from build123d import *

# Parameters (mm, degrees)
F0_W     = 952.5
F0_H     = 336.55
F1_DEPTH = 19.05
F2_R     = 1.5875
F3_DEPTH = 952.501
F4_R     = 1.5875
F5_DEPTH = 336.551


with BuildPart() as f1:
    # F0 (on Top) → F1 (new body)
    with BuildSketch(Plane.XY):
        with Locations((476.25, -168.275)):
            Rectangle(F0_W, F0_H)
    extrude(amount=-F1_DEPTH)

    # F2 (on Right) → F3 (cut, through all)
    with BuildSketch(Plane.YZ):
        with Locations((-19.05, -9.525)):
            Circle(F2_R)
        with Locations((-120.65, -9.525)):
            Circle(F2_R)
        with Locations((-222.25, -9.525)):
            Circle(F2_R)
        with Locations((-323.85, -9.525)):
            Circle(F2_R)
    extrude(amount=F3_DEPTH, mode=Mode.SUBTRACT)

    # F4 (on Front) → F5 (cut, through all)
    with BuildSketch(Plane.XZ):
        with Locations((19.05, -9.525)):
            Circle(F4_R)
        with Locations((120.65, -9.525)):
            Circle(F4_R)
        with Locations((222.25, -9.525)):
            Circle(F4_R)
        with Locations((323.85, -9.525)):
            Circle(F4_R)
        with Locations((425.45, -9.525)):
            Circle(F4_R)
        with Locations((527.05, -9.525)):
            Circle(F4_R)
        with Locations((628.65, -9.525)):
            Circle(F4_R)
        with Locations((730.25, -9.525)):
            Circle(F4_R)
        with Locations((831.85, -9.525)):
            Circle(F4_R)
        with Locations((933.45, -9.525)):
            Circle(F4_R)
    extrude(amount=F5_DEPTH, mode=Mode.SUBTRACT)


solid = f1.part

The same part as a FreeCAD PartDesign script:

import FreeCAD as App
import Part
import Sketcher
from FreeCAD import Vector
Q = App.Units.Quantity

doc = App.newDocument("Part")
body = doc.addObject("PartDesign::Body", "Body")

# Sketch on XY plane
sketch1 = doc.addObject("Sketcher::SketchObject", "Sketch")
body.addObject(sketch1)
sketch1.AttachmentSupport = (doc.XY_Plane, [""])
sketch1.MapMode = "FlatFace"
sketch1.addGeometry([
    Part.LineSegment(Vector(0, 0, 0), Vector(0, -337, 0)),
    Part.LineSegment(Vector(0, -337, 0), Vector(952, -337, 0)),
    Part.LineSegment(Vector(952, -337, 0), Vector(952, 0, 0)),
    Part.LineSegment(Vector(952, 0, 0), Vector(0, 0, 0)),
], False)
sketch1.addConstraint([
    Sketcher.Constraint("Coincident", 0, 2, 1, 1),
    Sketcher.Constraint("Coincident", 1, 2, 2, 1),
    Sketcher.Constraint("Coincident", 2, 2, 3, 1),
    Sketcher.Constraint("Coincident", 3, 2, 0, 1),
    Sketcher.Constraint("Vertical", 0),
    Sketcher.Constraint("Horizontal", 1),
    Sketcher.Constraint("Vertical", 2),
    Sketcher.Constraint("Horizontal", 3),
    Sketcher.Constraint("Coincident", 3, 2, -1, 1),
    Sketcher.Constraint("DistanceX", 1, 1, 1, 2, Q("37.5 in")),
    Sketcher.Constraint("DistanceY", 0, 2, 0, 1, Q("13.25 in")),
])
pad1 = doc.addObject("PartDesign::Pad", "Pad")
body.addObject(pad1)
pad1.Profile = sketch1
pad1.Length = Q("0.75 in")
pad1.Reversed = True

# Sketch on YZ plane
sketch2 = doc.addObject("Sketcher::SketchObject", "Sketch001")
body.addObject(sketch2)
sketch2.AttachmentSupport = (doc.YZ_Plane, [""])
sketch2.MapMode = "FlatFace"
sketch2.addGeometry([
    Part.Circle(Vector(-19.1, -9.5, 0), Vector(0, 0, 1), 1.6),
    Part.Circle(Vector(-120.7, -9.5, 0), Vector(0, 0, 1), 1.6),
    Part.Circle(Vector(-222.2, -9.5, 0), Vector(0, 0, 1), 1.6),
    Part.Circle(Vector(-323.9, -9.5, 0), Vector(0, 0, 1), 1.6),
], False)
sketch2.addConstraint([
    Sketcher.Constraint("Equal", 0, 1),
    Sketcher.Constraint("Equal", 1, 2),
    Sketcher.Constraint("Equal", 2, 3),
    Sketcher.Constraint("Horizontal", 0, 3, 1, 3),
    Sketcher.Constraint("Horizontal", 1, 3, 2, 3),
    Sketcher.Constraint("Horizontal", 2, 3, 3, 3),
    Sketcher.Constraint("Diameter", 0, Q("0.125 in")),
    Sketcher.Constraint("DistanceX", 1, 3, 0, 3, Q("4 in")),
    Sketcher.Constraint("DistanceX", 2, 3, 1, 3, Q("4 in")),
    Sketcher.Constraint("DistanceX", 3, 3, 2, 3, Q("4 in")),
    Sketcher.Constraint("DistanceX", 0, 3, -1, 1, Q("0.75 in")),
    Sketcher.Constraint("DistanceY", 0, 3, -1, 1, Q("0.375 in")),
])
pocket1 = doc.addObject("PartDesign::Pocket", "Pocket")
body.addObject(pocket1)
pocket1.Profile = sketch2
pocket1.Type = "ThroughAll"
pocket1.Reversed = True

# Sketch on XZ plane
sketch3 = doc.addObject("Sketcher::SketchObject", "Sketch002")
body.addObject(sketch3)
sketch3.AttachmentSupport = (doc.XZ_Plane, [""])
sketch3.MapMode = "FlatFace"
sketch3.addGeometry([
    Part.Circle(Vector(19.1, -9.5, 0), Vector(0, 0, 1), 1.6),  # 0
    Part.Circle(Vector(120.7, -9.5, 0), Vector(0, 0, 1), 1.6),  # 1
    Part.Circle(Vector(222.2, -9.5, 0), Vector(0, 0, 1), 1.6),  # 2
    Part.Circle(Vector(323.9, -9.5, 0), Vector(0, 0, 1), 1.6),  # 3
    Part.Circle(Vector(425.4, -9.5, 0), Vector(0, 0, 1), 1.6),  # 4
    Part.Circle(Vector(527, -9.5, 0), Vector(0, 0, 1), 1.6),  # 5
    Part.Circle(Vector(628.6, -9.5, 0), Vector(0, 0, 1), 1.6),  # 6
    Part.Circle(Vector(730.2, -9.5, 0), Vector(0, 0, 1), 1.6),  # 7
    Part.Circle(Vector(831.9, -9.5, 0), Vector(0, 0, 1), 1.6),  # 8
    Part.Circle(Vector(933.5, -9.5, 0), Vector(0, 0, 1), 1.6),  # 9
], False)
sketch3.addConstraint([
    Sketcher.Constraint("Equal", 0, 1),
    Sketcher.Constraint("Equal", 1, 2),
    Sketcher.Constraint("Equal", 2, 3),
    Sketcher.Constraint("Equal", 3, 4),
    Sketcher.Constraint("Equal", 4, 5),
    Sketcher.Constraint("Equal", 5, 6),
    Sketcher.Constraint("Equal", 6, 7),
    Sketcher.Constraint("Equal", 7, 8),
    Sketcher.Constraint("Equal", 8, 9),
    Sketcher.Constraint("Horizontal", 0, 3, 1, 3),
    Sketcher.Constraint("Horizontal", 1, 3, 2, 3),
    Sketcher.Constraint("Horizontal", 2, 3, 3, 3),
    Sketcher.Constraint("Horizontal", 3, 3, 4, 3),
    Sketcher.Constraint("Horizontal", 4, 3, 5, 3),
    Sketcher.Constraint("Horizontal", 5, 3, 6, 3),
    Sketcher.Constraint("Horizontal", 6, 3, 7, 3),
    Sketcher.Constraint("Horizontal", 7, 3, 8, 3),
    Sketcher.Constraint("Horizontal", 8, 3, 9, 3),
    Sketcher.Constraint("Diameter", 0, Q("0.125 in")),
    Sketcher.Constraint("DistanceX", 0, 3, 1, 3, Q("4 in")),
    Sketcher.Constraint("DistanceX", 1, 3, 2, 3, Q("4 in")),
    Sketcher.Constraint("DistanceX", 2, 3, 3, 3, Q("4 in")),
    Sketcher.Constraint("DistanceX", 3, 3, 4, 3, Q("4 in")),
    Sketcher.Constraint("DistanceX", 4, 3, 5, 3, Q("4 in")),
    Sketcher.Constraint("DistanceX", 5, 3, 6, 3, Q("4 in")),
    Sketcher.Constraint("DistanceX", 6, 3, 7, 3, Q("4 in")),
    Sketcher.Constraint("DistanceX", 7, 3, 8, 3, Q("4 in")),
    Sketcher.Constraint("DistanceX", 8, 3, 9, 3, Q("4 in")),
    Sketcher.Constraint("DistanceX", -1, 1, 0, 3, Q("0.75 in")),
    Sketcher.Constraint("DistanceY", 0, 3, -1, 1, Q("0.375 in")),
])
pocket2 = doc.addObject("PartDesign::Pocket", "Pocket001")
body.addObject(pocket2)
pocket2.Profile = sketch3
pocket2.Type = "ThroughAll"
pocket2.Reversed = True

doc.recompute()
